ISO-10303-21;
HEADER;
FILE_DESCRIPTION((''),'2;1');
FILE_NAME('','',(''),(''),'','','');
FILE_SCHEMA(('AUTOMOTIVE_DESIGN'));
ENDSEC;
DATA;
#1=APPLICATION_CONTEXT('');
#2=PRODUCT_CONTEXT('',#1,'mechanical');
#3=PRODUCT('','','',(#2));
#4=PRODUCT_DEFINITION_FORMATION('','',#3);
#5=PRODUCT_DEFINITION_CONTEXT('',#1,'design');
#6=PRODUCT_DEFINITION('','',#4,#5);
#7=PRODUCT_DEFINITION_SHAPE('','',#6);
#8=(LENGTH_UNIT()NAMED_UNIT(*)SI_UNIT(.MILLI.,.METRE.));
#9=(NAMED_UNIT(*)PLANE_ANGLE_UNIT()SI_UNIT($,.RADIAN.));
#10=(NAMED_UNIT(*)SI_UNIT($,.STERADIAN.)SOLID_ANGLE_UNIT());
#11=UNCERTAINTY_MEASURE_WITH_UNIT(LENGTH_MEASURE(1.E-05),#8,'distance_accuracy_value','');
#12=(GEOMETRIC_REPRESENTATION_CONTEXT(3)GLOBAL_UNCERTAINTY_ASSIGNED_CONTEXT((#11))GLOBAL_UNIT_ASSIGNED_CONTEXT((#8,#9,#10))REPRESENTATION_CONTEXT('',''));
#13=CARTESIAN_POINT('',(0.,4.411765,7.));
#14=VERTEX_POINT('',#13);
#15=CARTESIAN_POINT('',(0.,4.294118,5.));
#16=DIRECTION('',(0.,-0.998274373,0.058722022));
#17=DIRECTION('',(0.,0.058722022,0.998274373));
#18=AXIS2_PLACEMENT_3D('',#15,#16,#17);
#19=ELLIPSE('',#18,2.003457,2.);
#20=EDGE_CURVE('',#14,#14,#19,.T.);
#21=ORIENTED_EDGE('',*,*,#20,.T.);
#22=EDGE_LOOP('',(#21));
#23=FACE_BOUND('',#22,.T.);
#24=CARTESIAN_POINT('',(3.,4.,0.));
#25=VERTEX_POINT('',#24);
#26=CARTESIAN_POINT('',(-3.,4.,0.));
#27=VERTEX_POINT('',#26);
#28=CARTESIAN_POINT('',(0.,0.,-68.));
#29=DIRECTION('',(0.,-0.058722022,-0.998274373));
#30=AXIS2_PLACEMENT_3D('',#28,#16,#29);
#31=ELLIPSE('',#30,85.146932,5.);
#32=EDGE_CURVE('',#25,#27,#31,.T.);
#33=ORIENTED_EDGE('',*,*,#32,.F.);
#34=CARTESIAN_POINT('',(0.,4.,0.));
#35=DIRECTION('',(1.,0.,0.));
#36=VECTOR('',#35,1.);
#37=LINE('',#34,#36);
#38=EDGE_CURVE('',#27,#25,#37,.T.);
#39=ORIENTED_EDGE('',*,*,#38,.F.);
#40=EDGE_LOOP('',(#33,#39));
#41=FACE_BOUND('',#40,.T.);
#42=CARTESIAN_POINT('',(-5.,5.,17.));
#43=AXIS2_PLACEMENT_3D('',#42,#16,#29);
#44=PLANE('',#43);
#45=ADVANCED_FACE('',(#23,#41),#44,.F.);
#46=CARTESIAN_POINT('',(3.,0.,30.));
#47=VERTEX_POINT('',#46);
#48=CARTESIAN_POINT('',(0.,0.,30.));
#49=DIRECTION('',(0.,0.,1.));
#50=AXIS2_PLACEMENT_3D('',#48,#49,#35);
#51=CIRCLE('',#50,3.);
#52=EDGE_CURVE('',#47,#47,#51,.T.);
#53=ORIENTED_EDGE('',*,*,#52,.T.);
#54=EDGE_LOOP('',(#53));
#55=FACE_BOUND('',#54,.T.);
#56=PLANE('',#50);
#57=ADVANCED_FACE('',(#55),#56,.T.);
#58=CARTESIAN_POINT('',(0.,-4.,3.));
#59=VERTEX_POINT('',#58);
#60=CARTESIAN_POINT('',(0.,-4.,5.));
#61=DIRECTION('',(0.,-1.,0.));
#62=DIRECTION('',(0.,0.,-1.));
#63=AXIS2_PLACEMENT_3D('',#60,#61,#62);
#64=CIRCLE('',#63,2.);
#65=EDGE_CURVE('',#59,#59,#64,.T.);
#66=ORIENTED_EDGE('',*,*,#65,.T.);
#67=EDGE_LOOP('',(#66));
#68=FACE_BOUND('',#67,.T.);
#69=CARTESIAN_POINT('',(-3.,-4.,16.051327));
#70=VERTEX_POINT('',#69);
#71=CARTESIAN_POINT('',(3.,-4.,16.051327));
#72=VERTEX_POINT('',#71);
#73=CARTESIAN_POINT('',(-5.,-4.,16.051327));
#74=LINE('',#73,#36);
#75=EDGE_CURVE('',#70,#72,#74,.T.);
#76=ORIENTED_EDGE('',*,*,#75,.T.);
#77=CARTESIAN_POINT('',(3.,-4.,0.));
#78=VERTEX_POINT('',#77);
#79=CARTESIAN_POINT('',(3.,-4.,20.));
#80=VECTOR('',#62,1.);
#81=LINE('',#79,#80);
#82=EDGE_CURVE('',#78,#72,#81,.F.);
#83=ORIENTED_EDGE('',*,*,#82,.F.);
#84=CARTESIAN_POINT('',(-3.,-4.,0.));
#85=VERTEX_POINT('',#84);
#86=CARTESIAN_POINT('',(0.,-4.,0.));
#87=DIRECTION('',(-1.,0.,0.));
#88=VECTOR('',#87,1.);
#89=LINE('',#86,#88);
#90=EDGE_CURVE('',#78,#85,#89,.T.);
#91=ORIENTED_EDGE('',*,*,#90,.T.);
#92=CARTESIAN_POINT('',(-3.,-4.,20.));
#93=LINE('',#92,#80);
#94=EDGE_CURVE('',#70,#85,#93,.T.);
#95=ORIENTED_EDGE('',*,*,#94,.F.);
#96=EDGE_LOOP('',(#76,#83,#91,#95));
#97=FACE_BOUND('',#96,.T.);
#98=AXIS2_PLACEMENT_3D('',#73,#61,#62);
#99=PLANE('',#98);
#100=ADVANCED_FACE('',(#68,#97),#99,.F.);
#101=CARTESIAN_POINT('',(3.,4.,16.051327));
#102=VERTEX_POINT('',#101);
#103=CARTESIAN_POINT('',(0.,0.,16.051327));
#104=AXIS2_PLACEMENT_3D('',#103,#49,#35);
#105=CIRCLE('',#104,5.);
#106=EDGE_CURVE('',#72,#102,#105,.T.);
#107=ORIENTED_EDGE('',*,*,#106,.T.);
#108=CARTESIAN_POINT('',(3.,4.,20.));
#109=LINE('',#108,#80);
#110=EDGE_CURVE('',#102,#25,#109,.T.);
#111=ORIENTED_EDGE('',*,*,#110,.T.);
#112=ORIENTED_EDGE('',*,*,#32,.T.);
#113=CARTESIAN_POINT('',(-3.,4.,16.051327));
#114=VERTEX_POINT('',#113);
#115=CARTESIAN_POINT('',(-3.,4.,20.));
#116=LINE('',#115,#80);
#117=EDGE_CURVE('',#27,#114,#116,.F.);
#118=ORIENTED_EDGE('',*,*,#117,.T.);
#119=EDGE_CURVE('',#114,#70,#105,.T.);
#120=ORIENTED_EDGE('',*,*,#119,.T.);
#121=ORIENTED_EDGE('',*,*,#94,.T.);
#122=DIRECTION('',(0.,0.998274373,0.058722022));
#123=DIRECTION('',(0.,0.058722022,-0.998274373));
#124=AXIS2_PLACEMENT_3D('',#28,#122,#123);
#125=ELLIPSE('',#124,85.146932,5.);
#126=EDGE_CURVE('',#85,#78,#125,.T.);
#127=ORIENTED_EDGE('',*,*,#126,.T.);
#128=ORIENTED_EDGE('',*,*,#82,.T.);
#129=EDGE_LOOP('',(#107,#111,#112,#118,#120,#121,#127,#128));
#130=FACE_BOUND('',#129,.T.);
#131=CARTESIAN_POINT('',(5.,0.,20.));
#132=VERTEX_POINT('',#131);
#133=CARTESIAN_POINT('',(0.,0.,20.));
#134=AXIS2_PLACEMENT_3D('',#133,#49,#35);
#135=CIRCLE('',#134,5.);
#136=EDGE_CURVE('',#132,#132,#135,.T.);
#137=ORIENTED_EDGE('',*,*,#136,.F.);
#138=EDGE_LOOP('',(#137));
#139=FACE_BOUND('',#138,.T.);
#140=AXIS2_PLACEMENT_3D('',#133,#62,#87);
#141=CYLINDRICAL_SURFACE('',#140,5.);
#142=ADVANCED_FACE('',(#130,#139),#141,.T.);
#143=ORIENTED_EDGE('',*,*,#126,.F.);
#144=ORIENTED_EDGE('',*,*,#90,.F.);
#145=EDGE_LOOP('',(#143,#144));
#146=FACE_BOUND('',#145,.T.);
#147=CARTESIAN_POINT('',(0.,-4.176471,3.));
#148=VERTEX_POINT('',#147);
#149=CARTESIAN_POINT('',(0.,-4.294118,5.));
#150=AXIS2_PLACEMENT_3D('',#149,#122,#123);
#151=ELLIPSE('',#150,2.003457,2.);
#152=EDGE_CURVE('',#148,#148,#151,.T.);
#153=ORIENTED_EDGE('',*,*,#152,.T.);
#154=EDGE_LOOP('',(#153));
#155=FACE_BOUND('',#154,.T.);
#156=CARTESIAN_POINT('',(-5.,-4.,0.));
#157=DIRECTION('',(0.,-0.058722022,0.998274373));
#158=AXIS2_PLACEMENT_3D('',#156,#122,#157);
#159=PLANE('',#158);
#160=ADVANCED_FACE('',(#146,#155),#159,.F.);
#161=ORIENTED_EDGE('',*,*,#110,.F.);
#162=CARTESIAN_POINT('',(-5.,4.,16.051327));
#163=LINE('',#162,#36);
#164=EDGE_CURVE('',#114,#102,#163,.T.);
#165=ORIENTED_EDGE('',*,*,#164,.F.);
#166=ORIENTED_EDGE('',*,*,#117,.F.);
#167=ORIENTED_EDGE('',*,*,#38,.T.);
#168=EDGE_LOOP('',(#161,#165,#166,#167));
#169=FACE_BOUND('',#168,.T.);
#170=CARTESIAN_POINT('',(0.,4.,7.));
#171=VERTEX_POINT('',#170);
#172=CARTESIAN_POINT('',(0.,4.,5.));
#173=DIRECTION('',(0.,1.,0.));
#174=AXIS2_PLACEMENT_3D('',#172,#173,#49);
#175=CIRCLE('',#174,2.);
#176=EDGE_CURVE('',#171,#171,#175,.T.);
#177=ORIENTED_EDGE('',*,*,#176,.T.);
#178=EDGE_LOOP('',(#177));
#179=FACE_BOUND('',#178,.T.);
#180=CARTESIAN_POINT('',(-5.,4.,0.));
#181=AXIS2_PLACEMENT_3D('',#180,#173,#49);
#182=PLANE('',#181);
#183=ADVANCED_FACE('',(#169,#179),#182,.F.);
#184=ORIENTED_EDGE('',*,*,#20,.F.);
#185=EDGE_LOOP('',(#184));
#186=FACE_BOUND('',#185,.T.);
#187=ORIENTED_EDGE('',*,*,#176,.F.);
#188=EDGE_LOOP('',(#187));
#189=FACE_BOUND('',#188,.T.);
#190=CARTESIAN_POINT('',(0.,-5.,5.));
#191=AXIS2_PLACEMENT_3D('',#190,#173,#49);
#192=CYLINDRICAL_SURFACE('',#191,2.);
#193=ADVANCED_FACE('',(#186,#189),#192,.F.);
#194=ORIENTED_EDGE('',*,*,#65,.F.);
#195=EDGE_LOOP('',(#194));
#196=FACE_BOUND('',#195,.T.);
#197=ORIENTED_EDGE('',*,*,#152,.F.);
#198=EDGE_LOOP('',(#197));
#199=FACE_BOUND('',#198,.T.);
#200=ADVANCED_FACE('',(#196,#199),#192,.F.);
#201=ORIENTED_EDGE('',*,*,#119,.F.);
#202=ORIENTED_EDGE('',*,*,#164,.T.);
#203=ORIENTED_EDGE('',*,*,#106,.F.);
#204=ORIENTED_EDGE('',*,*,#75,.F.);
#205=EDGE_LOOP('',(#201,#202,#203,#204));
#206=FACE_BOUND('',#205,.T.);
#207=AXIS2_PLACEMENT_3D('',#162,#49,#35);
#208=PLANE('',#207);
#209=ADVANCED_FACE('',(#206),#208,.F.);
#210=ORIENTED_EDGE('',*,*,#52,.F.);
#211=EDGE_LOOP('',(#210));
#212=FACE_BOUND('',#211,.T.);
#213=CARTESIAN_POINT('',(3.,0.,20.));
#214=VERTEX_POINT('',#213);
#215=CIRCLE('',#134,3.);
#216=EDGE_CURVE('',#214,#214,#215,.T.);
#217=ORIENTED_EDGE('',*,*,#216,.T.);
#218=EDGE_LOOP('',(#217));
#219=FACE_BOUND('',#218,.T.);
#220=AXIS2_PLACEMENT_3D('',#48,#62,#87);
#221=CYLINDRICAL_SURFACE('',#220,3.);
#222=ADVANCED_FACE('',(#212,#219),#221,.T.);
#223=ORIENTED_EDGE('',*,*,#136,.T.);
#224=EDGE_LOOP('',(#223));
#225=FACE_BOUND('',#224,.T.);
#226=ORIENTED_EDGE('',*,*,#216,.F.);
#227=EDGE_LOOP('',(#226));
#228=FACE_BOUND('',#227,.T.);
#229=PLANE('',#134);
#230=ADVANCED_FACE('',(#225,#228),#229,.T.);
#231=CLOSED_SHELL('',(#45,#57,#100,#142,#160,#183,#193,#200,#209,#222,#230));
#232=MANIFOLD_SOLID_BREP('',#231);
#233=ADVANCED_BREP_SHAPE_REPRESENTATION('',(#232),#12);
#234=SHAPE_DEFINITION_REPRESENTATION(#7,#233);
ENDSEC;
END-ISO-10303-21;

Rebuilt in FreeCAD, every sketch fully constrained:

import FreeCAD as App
import Part
import Sketcher

V = App.Vector
Q = App.Units.Quantity

doc = App.newDocument("Part")
body = doc.addObject("PartDesign::Body", "Body")

# Sketch on XY plane
sketch1 = doc.addObject("Sketcher::SketchObject", "Sketch")
body.addObject(sketch1)
sketch1.AttachmentSupport = (doc.XY_Plane, [""])
sketch1.MapMode = "FlatFace"
sketch1.addGeometry(Part.Circle(V(0, 0, 0), V(0, 0, 1), 5), False)
sketch1.addConstraint([
    Sketcher.Constraint("Coincident", 0, 3, -1, 1),
    Sketcher.Constraint("Diameter", 0, Q("10 mm")),
])
pad1 = doc.addObject("PartDesign::Pad", "Pad")
body.addObject(pad1)
pad1.Profile = sketch1
pad1.Length = 20

# Sketch on XY plane
sketch2 = doc.addObject("Sketcher::SketchObject", "Sketch001")
body.addObject(sketch2)
sketch2.AttachmentSupport = (doc.XY_Plane, [""])
sketch2.MapMode = "FlatFace"
sketch2.AttachmentOffset = App.Placement(V(0, 0, 20), App.Rotation())
sketch2.addGeometry(Part.Circle(V(0, 0, 0), V(0, 0, 1), 3), False)
sketch2.addConstraint([
    Sketcher.Constraint("Coincident", 0, 3, -1, 1),
    Sketcher.Constraint("Diameter", 0, Q("6 mm")),
])
pad2 = doc.addObject("PartDesign::Pad", "Pad001")
body.addObject(pad2)
pad2.Profile = sketch2
pad2.Length = 10

# Sketch on YZ plane
sketch3 = doc.addObject("Sketcher::SketchObject", "Sketch002")
body.addObject(sketch3)
sketch3.AttachmentSupport = (doc.YZ_Plane, [""])
sketch3.MapMode = "FlatFace"
sketch3.addGeometry([
    Part.LineSegment(V(5, 0, 0), V(5, 17, 0)),  # 0
    Part.LineSegment(V(5, 17, 0), V(4, 0, 0)),  # 1
    Part.LineSegment(V(4, 0, 0), V(5, 0, 0)),  # 2
    Part.LineSegment(V(-5, 17, 0), V(-5, 0, 0)),  # 3
    Part.LineSegment(V(-5, 0, 0), V(-4, 0, 0)),  # 4
    Part.LineSegment(V(-4, 0, 0), V(-5, 17, 0)),  # 5
], False)
sketch3.addConstraint([
    Sketcher.Constraint("Coincident", 0, 2, 1, 1),
    Sketcher.Constraint("Coincident", 1, 2, 2, 1),
    Sketcher.Constraint("Coincident", 2, 2, 0, 1),
    Sketcher.Constraint("Coincident", 3, 2, 4, 1),
    Sketcher.Constraint("Coincident", 4, 2, 5, 1),
    Sketcher.Constraint("Coincident", 5, 2, 3, 1),
    Sketcher.Constraint("Vertical", 0),
    Sketcher.Constraint("Horizontal", 2),
    Sketcher.Constraint("Vertical", 3),
    Sketcher.Constraint("Horizontal", 4),
    Sketcher.Constraint("Symmetric", 2, 2, 3, 2, -1, 1),
    Sketcher.Constraint("Symmetric", 1, 2, 4, 2, -2),
    Sketcher.Constraint("Horizontal", 0, 2, 5, 2),
    Sketcher.Constraint("DistanceX", 2, 1, 2, 2, Q("1 mm")),
    Sketcher.Constraint("DistanceY", 0, 1, 0, 2, Q("17 mm")),
    Sketcher.Constraint("DistanceX", -1, 1, 0, 2, Q("5 mm")),
])
pocket1 = doc.addObject("PartDesign::Pocket", "Pocket")
body.addObject(pocket1)
pocket1.Profile = sketch3
pocket1.Length = 10
pocket1.Midplane = True

# Sketch on YZ plane
sketch4 = doc.addObject("Sketcher::SketchObject", "Sketch003")
body.addObject(sketch4)
sketch4.AttachmentSupport = (doc.YZ_Plane, [""])
sketch4.MapMode = "FlatFace"
sketch4.addGeometry([
    Part.LineSegment(V(4, 16, 0), V(-4, 16, 0)),
    Part.LineSegment(V(-4, 16, 0), V(-4, 0, 0)),
    Part.LineSegment(V(-4, 0, 0), V(4, 0, 0)),
    Part.LineSegment(V(4, 0, 0), V(4, 16, 0)),
], False)
sketch4.addConstraint([
    Sketcher.Constraint("Coincident", 0, 2, 1, 1),
    Sketcher.Constraint("Coincident", 1, 2, 2, 1),
    Sketcher.Constraint("Coincident", 2, 2, 3, 1),
    Sketcher.Constraint("Coincident", 3, 2, 0, 1),
    Sketcher.Constraint("Horizontal", 0),
    Sketcher.Constraint("Vertical", 1),
    Sketcher.Constraint("Horizontal", 2),
    Sketcher.Constraint("Vertical", 3),
    Sketcher.Constraint("Symmetric", 1, 2, 2, 2, -1, 1),
    Sketcher.Constraint("DistanceX", 0, 2, 0, 1, Q("8 mm")),
    Sketcher.Constraint("DistanceY", 1, 2, 1, 1, Q("16.051327 mm")),
])
pocket2 = doc.addObject("PartDesign::Pocket", "Pocket001")
body.addObject(pocket2)
pocket2.Profile = sketch4
pocket2.Length = 10
pocket2.Midplane = True

# Sketch on XZ plane
sketch5 = doc.addObject("Sketcher::SketchObject", "Sketch004")
body.addObject(sketch5)
sketch5.AttachmentSupport = (doc.XZ_Plane, [""])
sketch5.MapMode = "FlatFace"
sketch5.addGeometry(Part.Circle(V(0, 5, 0), V(0, 0, 1), 2), False)
sketch5.addConstraint([
    Sketcher.Constraint("PointOnObject", 0, 3, -2),
    Sketcher.Constraint("Diameter", 0, Q("4 mm")),
    Sketcher.Constraint("DistanceY", -1, 1, 0, 3, Q("5 mm")),
])
pocket3 = doc.addObject("PartDesign::Pocket", "Pocket002")
body.addObject(pocket3)
pocket3.Profile = sketch5
pocket3.Length = 10
pocket3.Midplane = True

doc.recompute()
